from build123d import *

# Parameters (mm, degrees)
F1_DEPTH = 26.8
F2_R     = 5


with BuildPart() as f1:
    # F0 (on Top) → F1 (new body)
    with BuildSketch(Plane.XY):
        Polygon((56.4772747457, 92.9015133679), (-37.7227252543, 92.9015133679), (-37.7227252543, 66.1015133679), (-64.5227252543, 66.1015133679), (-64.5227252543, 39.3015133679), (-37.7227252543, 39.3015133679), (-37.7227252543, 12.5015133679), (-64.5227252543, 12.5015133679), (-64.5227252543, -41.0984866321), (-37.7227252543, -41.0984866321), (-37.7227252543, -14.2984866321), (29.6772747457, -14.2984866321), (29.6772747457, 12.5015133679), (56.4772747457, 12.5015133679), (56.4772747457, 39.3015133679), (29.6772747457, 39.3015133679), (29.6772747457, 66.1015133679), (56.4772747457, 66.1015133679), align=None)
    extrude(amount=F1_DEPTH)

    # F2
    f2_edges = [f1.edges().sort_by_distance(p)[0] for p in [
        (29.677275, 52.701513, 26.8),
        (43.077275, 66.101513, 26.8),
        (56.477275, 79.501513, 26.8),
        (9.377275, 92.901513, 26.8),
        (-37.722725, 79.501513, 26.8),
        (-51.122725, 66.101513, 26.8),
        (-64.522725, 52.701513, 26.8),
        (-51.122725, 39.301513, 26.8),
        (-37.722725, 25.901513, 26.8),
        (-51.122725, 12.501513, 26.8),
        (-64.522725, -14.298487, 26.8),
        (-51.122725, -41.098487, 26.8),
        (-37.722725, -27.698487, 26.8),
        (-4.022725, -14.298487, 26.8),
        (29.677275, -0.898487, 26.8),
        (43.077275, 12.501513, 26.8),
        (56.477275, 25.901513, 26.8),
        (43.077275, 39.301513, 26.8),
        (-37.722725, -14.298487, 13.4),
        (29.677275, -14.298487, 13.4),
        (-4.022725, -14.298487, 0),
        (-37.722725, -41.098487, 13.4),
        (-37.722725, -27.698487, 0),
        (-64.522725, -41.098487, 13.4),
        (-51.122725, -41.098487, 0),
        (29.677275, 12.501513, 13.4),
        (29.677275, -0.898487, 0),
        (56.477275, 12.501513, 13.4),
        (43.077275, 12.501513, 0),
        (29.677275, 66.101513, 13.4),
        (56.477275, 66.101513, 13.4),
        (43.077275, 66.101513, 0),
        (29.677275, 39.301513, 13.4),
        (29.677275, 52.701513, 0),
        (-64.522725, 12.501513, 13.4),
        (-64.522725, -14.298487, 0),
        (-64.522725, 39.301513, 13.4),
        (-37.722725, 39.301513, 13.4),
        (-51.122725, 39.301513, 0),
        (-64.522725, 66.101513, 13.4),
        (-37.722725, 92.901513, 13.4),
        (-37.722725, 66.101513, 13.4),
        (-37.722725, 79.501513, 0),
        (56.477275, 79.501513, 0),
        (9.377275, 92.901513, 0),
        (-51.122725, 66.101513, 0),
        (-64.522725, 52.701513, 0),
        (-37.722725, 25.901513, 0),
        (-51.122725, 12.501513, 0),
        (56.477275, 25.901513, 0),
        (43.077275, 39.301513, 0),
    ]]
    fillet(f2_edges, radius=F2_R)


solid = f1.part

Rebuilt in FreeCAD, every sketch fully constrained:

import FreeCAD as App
import Part
import Sketcher
from FreeCAD import Vector
Q = App.Units.Quantity


def edges_at(feature, points):
    """Names of the edges that pass closest to the given points."""
    edges = feature.Shape.Edges
    near = lambda p: min(range(len(edges)), key=lambda i: edges[i].distToShape(Part.Vertex(*p))[0])
    return sorted({f"Edge{near(p) + 1}" for p in points})

doc = App.newDocument("Part")
body = doc.addObject("PartDesign::Body", "Body")

# Sketch on XY plane
sketch1 = body.newObject("Sketcher::SketchObject", "Sketch")
sketch1.AttachmentSupport = (doc.getObject("XY_Plane"), [""])
sketch1.MapMode = "FlatFace"
sketch1.addGeometry(Part.LineSegment(Vector(56, 93, 0), Vector(-38, 93, 0)), False)
sketch1.addGeometry(Part.LineSegment(Vector(-38, 93, 0), Vector(-38, 66, 0)), False)
sketch1.addGeometry(Part.LineSegment(Vector(-38, 66, 0), Vector(-65, 66, 0)), False)
sketch1.addGeometry(Part.LineSegment(Vector(-65, 66, 0), Vector(-65, 39, 0)), False)
sketch1.addGeometry(Part.LineSegment(Vector(-65, 39, 0), Vector(-38, 39, 0)), False)
sketch1.addGeometry(Part.LineSegment(Vector(-38, 39, 0), Vector(-38, 13, 0)), False)
sketch1.addGeometry(Part.LineSegment(Vector(-38, 13, 0), Vector(-65, 13, 0)), False)
sketch1.addGeometry(Part.LineSegment(Vector(-65, 13, 0), Vector(-65, -41, 0)), False)
sketch1.addGeometry(Part.LineSegment(Vector(-65, -41, 0), Vector(-38, -41, 0)), False)
sketch1.addGeometry(Part.LineSegment(Vector(-38, -41, 0), Vector(-38, -14, 0)), False)
sketch1.addGeometry(Part.LineSegment(Vector(-38, -14, 0), Vector(30, -14, 0)), False)
sketch1.addGeometry(Part.LineSegment(Vector(30, -14, 0), Vector(30, 13, 0)), False)
sketch1.addGeometry(Part.LineSegment(Vector(30, 13, 0), Vector(56, 13, 0)), False)
sketch1.addGeometry(Part.LineSegment(Vector(56, 13, 0), Vector(56, 39, 0)), False)
sketch1.addGeometry(Part.LineSegment(Vector(56, 39, 0), Vector(30, 39, 0)), False)
sketch1.addGeometry(Part.LineSegment(Vector(30, 39, 0), Vector(30, 66, 0)), False)
sketch1.addGeometry(Part.LineSegment(Vector(30, 66, 0), Vector(56, 66, 0)), False)
sketch1.addGeometry(Part.LineSegment(Vector(56, 66, 0), Vector(56, 93, 0)), False)
sketch1.addConstraint(Sketcher.Constraint("Coincident", 0, 2, 1, 1))
sketch1.addConstraint(Sketcher.Constraint("Coincident", 1, 2, 2, 1))
sketch1.addConstraint(Sketcher.Constraint("Coincident", 2, 2, 3, 1))
sketch1.addConstraint(Sketcher.Constraint("Coincident", 3, 2, 4, 1))
sketch1.addConstraint(Sketcher.Constraint("Coincident", 4, 2, 5, 1))
sketch1.addConstraint(Sketcher.Constraint("Coincident", 5, 2, 6, 1))
sketch1.addConstraint(Sketcher.Constraint("Coincident", 6, 2, 7, 1))
sketch1.addConstraint(Sketcher.Constraint("Coincident", 7, 2, 8, 1))
sketch1.addConstraint(Sketcher.Constraint("Coincident", 8, 2, 9, 1))
sketch1.addConstraint(Sketcher.Constraint("Coincident", 9, 2, 10, 1))
sketch1.addConstraint(Sketcher.Constraint("Coincident", 10, 2, 11, 1))
sketch1.addConstraint(Sketcher.Constraint("Coincident", 11, 2, 12, 1))
sketch1.addConstraint(Sketcher.Constraint("Coincident", 12, 2, 13, 1))
sketch1.addConstraint(Sketcher.Constraint("Coincident", 13, 2, 14, 1))
sketch1.addConstraint(Sketcher.Constraint("Coincident", 14, 2, 15, 1))
sketch1.addConstraint(Sketcher.Constraint("Coincident", 15, 2, 16, 1))
sketch1.addConstraint(Sketcher.Constraint("Coincident", 16, 2, 17, 1))
sketch1.addConstraint(Sketcher.Constraint("Coincident", 17, 2, 0, 1))
sketch1.addConstraint(Sketcher.Constraint("Horizontal", 0))
sketch1.addConstraint(Sketcher.Constraint("Vertical", 1))
sketch1.addConstraint(Sketcher.Constraint("Horizontal", 2))
sketch1.addConstraint(Sketcher.Constraint("Vertical", 3))
sketch1.addConstraint(Sketcher.Constraint("Horizontal", 4))
sketch1.addConstraint(Sketcher.Constraint("Vertical", 5))
sketch1.addConstraint(Sketcher.Constraint("Horizontal", 6))
sketch1.addConstraint(Sketcher.Constraint("Vertical", 7))
sketch1.addConstraint(Sketcher.Constraint("Horizontal", 8))
sketch1.addConstraint(Sketcher.Constraint("Vertical", 9))
sketch1.addConstraint(Sketcher.Constraint("Horizontal", 10))
sketch1.addConstraint(Sketcher.Constraint("Vertical", 11))
sketch1.addConstraint(Sketcher.Constraint("Horizontal", 12))
sketch1.addConstraint(Sketcher.Constraint("Vertical", 13))
sketch1.addConstraint(Sketcher.Constraint("Horizontal", 14))
sketch1.addConstraint(Sketcher.Constraint("Vertical", 15))
sketch1.addConstraint(Sketcher.Constraint("Horizontal", 16))
sketch1.addConstraint(Sketcher.Constraint("Vertical", 17))
sketch1.addConstraint(Sketcher.Constraint("Horizontal", 6, 2, 11, 2))
sketch1.addConstraint(Sketcher.Constraint("Horizontal", 4, 2, 13, 2))
sketch1.addConstraint(Sketcher.Constraint("Horizontal", 2, 2, 15, 2))
sketch1.addConstraint(Sketcher.Constraint("Vertical", 1, 2, 4, 2))
sketch1.addConstraint(Sketcher.Constraint("Vertical", 3, 2, 6, 2))
sketch1.addConstraint(Sketcher.Constraint("Vertical", 5, 2, 8, 2))
sketch1.addConstraint(Sketcher.Constraint("Vertical", 11, 2, 14, 2))
sketch1.addConstraint(Sketcher.Constraint("Vertical", 13, 2, 16, 2))
sketch1.addConstraint(Sketcher.Constraint("Equal", 8, 12))
sketch1.addConstraint(Sketcher.Constraint("Equal", 16, 1))
sketch1.addConstraint(Sketcher.Constraint("Equal", 1, 3))
sketch1.addConstraint(Sketcher.Constraint("Equal", 3, 5))
sketch1.addConstraint(Sketcher.Constraint("Equal", 5, 9))
sketch1.addConstraint(Sketcher.Constraint("Equal", 9, 11))
sketch1.addConstraint(Sketcher.Constraint("DistanceX", 0, 2, 0, 1, Q("94.2 mm")))
sketch1.addConstraint(Sketcher.Constraint("DistanceX", 2, 2, 2, 1, Q("26.8 mm")))
sketch1.addConstraint(Sketcher.Constraint("DistanceX", 0, 2, -1, 1, Q("37.722725 mm")))
sketch1.addConstraint(Sketcher.Constraint("DistanceY", -1, 1, 0, 2, Q("92.901513 mm")))
pad1 = body.newObject("PartDesign::Pad", "Pad")
pad1.Profile = sketch1
pad1.Length = 26.8
doc.recompute()

fillet = body.newObject("PartDesign::Fillet", "Fillet")
fillet.Base = (pad1, edges_at(pad1, [
    (29.677, 52.702, 26.8),
    (43.077, 66.102, 26.8),
    (56.477, 79.502, 26.8),
    (9.377, 92.902, 26.8),
    (-37.723, 79.502, 26.8),
    (-51.123, 66.102, 26.8),
    (-64.523, 52.702, 26.8),
    (-51.123, 39.302, 26.8),
    (-37.723, 25.902, 26.8),
    (-51.123, 12.502, 26.8),
    (-64.523, -14.298, 26.8),
    (-51.123, -41.098, 26.8),
    (-37.723, -27.698, 26.8),
    (-4.023, -14.298, 26.8),
    (29.677, -0.898, 26.8),
    (43.077, 12.502, 26.8),
    (56.477, 25.902, 26.8),
    (43.077, 39.302, 26.8),
    (-37.723, -14.298, 13.4),
    (29.677, -14.298, 13.4),
    (-4.023, -14.298, 0),
    (-37.723, -41.098, 13.4),
    (-37.723, -27.698, 0),
    (-64.523, -41.098, 13.4),
    (-51.123, -41.098, 0),
    (29.677, 12.502, 13.4),
    (29.677, -0.898, 0),
    (56.477, 12.502, 13.4),
    (43.077, 12.502, 0),
    (29.677, 66.102, 13.4),
    (56.477, 66.102, 13.4),
    (43.077, 66.102, 0),
    (29.677, 39.302, 13.4),
    (29.677, 52.702, 0),
    (-64.523, 12.502, 13.4),
    (-64.523, -14.298, 0),
    (-64.523, 39.302, 13.4),
    (-37.723, 39.302, 13.4),
    (-51.123, 39.302, 0),
    (-64.523, 66.102, 13.4),
    (-37.723, 92.902, 13.4),
    (-37.723, 66.102, 13.4),
    (-37.723, 79.502, 0),
    (56.477, 79.502, 0),
    (9.377, 92.902, 0),
    (-51.123, 66.102, 0),
    (-64.523, 52.702, 0),
    (-37.723, 25.902, 0),
    (-51.123, 12.502, 0),
    (56.477, 25.902, 0),
    (43.077, 39.302, 0),
]))
fillet.Radius = 5

doc.recompute()
